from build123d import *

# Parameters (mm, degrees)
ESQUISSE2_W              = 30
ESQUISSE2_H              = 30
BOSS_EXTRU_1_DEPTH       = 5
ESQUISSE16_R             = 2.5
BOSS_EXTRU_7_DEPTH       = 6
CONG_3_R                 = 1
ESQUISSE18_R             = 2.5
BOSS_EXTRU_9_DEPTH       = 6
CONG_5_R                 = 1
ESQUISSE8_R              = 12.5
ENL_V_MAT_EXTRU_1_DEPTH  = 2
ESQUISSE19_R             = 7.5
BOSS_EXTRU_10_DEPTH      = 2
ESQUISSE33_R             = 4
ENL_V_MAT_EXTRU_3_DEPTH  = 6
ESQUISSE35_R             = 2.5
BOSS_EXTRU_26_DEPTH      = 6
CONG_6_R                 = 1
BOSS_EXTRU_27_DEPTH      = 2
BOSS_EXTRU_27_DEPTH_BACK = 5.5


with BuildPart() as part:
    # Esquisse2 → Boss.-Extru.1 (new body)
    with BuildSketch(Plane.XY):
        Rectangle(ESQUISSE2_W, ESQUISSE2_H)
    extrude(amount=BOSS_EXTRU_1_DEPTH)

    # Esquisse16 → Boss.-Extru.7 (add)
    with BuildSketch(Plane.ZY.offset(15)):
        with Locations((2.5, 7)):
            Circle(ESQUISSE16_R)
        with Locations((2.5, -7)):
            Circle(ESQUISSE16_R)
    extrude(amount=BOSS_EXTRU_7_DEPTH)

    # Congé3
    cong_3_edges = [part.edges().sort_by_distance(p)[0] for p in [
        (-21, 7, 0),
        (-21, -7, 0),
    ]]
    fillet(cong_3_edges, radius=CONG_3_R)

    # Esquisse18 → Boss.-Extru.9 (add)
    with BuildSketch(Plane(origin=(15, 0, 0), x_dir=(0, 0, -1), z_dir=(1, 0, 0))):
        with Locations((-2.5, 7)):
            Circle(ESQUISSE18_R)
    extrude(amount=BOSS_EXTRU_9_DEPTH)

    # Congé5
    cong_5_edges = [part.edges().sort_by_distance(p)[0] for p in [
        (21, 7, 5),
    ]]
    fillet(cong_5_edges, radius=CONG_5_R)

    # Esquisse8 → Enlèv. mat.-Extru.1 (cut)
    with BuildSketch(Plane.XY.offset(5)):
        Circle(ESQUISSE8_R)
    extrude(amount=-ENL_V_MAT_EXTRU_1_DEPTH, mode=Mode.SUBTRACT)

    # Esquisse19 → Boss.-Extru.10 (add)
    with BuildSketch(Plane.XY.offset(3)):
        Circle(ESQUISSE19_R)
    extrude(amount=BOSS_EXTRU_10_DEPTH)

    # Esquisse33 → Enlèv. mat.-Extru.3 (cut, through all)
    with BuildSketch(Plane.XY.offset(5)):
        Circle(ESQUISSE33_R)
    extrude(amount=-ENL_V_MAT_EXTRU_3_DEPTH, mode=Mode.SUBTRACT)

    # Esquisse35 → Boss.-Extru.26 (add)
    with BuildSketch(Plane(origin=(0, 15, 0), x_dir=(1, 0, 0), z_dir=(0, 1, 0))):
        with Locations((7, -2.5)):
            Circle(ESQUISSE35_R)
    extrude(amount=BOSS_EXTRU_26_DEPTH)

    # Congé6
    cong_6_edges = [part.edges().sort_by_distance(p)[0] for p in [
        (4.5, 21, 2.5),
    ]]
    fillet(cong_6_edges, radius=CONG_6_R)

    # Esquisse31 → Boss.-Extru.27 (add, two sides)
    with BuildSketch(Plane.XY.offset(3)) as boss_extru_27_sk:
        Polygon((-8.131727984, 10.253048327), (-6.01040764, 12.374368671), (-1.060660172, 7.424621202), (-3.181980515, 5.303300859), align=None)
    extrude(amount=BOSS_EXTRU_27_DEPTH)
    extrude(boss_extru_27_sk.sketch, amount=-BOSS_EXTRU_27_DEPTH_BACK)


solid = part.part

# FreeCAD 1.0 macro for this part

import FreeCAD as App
import Part
import Sketcher

V = App.Vector
Q = App.Units.Quantity


def edges_at(feature, points):
    """Names of the edges that pass closest to the given points."""
    edges = feature.Shape.Edges
    near = lambda p: min(range(len(edges)), key=lambda i: edges[i].distToShape(Part.Vertex(*p))[0])
    return sorted({f"Edge{near(p) + 1}" for p in points})

doc = App.newDocument("Part")
body = doc.addObject("PartDesign::Body", "Body")

sketch1 = body.newObject("Sketcher::SketchObject", "Sketch")
sketch1.AttachmentSupport = (doc.getObject("XY_Plane"), [""])
sketch1.MapMode = "FlatFace"
sketch1.addGeometry(Part.LineSegment(V(-15, 15, 0), V(-15, -15, 0)), False)
sketch1.addGeometry(Part.LineSegment(V(-15, -15, 0), V(15, -15, 0)), False)
sketch1.addGeometry(Part.LineSegment(V(15, -15, 0), V(15, 15, 0)), False)
sketch1.addGeometry(Part.LineSegment(V(15, 15, 0), V(-15, 15, 0)), False)
sketch1.addConstraint(Sketcher.Constraint("Coincident", 0, 2, 1, 1))
sketch1.addConstraint(Sketcher.Constraint("Coincident", 1, 2, 2, 1))
sketch1.addConstraint(Sketcher.Constraint("Coincident", 2, 2, 3, 1))
sketch1.addConstraint(Sketcher.Constraint("Coincident", 3, 2, 0, 1))
sketch1.addConstraint(Sketcher.Constraint("Vertical", 0))
sketch1.addConstraint(Sketcher.Constraint("Horizontal", 1))
sketch1.addConstraint(Sketcher.Constraint("Vertical", 2))
sketch1.addConstraint(Sketcher.Constraint("Horizontal", 3))
sketch1.addConstraint(Sketcher.Constraint("Symmetric", 0, 2, 2, 2, -1, 1))
sketch1.addConstraint(Sketcher.Constraint("Equal", 3, 0))
sketch1.addConstraint(Sketcher.Constraint("DistanceX", 1, 1, 1, 2, 30.0))
pad1 = body.newObject("PartDesign::Pad", "Pad")
pad1.Profile = sketch1
pad1.Length = 5

sketch2 = body.newObject("Sketcher::SketchObject", "Sketch001")
sketch2.AttachmentSupport = (doc.getObject("YZ_Plane"), [""])
sketch2.MapMode = "FlatFace"
sketch2.AttachmentOffset = App.Placement(V(0, 0, -15), App.Rotation())
sketch2.addGeometry(Part.Circle(V(7, 2.5, 0), V(0, 0, 1), 2.5), False)
sketch2.addGeometry(Part.Circle(V(-7, 2.5, 0), V(0, 0, 1), 2.5), False)
sketch2.addConstraint(Sketcher.Constraint("Equal", 0, 1))
sketch2.addConstraint(Sketcher.Constraint("Symmetric", 0, 3, 1, 3, -2))
sketch2.addConstraint(Sketcher.Constraint("Diameter", 0, 5.0))
sketch2.addConstraint(Sketcher.Constraint("DistanceX", -1, 1, 0, 3, 7.0))
sketch2.addConstraint(Sketcher.Constraint("DistanceY", -1, 1, 0, 3, 2.5))
pad2 = body.newObject("PartDesign::Pad", "Pad001")
pad2.Profile = sketch2
pad2.Length = 6
pad2.Reversed = True
doc.recompute()

fillet = body.newObject("PartDesign::Fillet", "Fillet")
fillet.Base = (pad2, edges_at(pad2, [(-21, 7, 0), (-21, -7, 0)]))
fillet.Radius = 1

sketch3 = body.newObject("Sketcher::SketchObject", "Sketch002")
sketch3.AttachmentSupport = (doc.getObject("YZ_Plane"), [""])
sketch3.MapMode = "FlatFace"
sketch3.AttachmentOffset = App.Placement(V(0, 0, 15), App.Rotation())
sketch3.addGeometry(Part.Circle(V(7, 2.5, 0), V(0, 0, 1), 2.5), False)
sketch3.addConstraint(Sketcher.Constraint("Diameter", 0, 5.0))
sketch3.addConstraint(Sketcher.Constraint("DistanceX", -1, 1, 0, 3, 7.0))
sketch3.addConstraint(Sketcher.Constraint("DistanceY", -1, 1, 0, 3, 2.5))
pad3 = body.newObject("PartDesign::Pad", "Pad002")
pad3.Profile = sketch3
pad3.Length = 6
doc.recompute()

fillet2 = body.newObject("PartDesign::Fillet", "Fillet001")
fillet2.Base = (pad3, edges_at(pad3, [(21, 7, 5)]))
fillet2.Radius = 1

sketch4 = body.newObject("Sketcher::SketchObject", "Sketch003")
sketch4.AttachmentSupport = (doc.getObject("XY_Plane"), [""])
sketch4.MapMode = "FlatFace"
sketch4.AttachmentOffset = App.Placement(V(0, 0, 5), App.Rotation())
sketch4.addGeometry(Part.Circle(V(0, 0, 0), V(0, 0, 1), 12), False)
sketch4.addConstraint(Sketcher.Constraint("Coincident", 0, 3, -1, 1))
sketch4.addConstraint(Sketcher.Constraint("Diameter", 0, 25.0))
pocket1 = body.newObject("PartDesign::Pocket", "Pocket")
pocket1.Profile = sketch4
pocket1.Length = 2

sketch5 = body.newObject("Sketcher::SketchObject", "Sketch004")
sketch5.AttachmentSupport = (doc.getObject("XY_Plane"), [""])
sketch5.MapMode = "FlatFace"
sketch5.AttachmentOffset = App.Placement(V(0, 0, 3), App.Rotation())
sketch5.addGeometry(Part.Circle(V(0, 0, 0), V(0, 0, 1), 8), False)
sketch5.addConstraint(Sketcher.Constraint("Coincident", 0, 3, -1, 1))
sketch5.addConstraint(Sketcher.Constraint("Diameter", 0, 15.0))
pad4 = body.newObject("PartDesign::Pad", "Pad003")
pad4.Profile = sketch5
pad4.Length = 2

sketch6 = body.newObject("Sketcher::SketchObject", "Sketch005")
sketch6.AttachmentSupport = (doc.getObject("XY_Plane"), [""])
sketch6.MapMode = "FlatFace"
sketch6.AttachmentOffset = App.Placement(V(0, 0, 5), App.Rotation())
sketch6.addGeometry(Part.Circle(V(0, 0, 0), V(0, 0, 1), 4), False)
sketch6.addConstraint(Sketcher.Constraint("Coincident", 0, 3, -1, 1))
sketch6.addConstraint(Sketcher.Constraint("Diameter", 0, 8.0))
pocket2 = body.newObject("PartDesign::Pocket", "Pocket001")
pocket2.Profile = sketch6
pocket2.Type = "ThroughAll"

sketch7 = body.newObject("Sketcher::SketchObject", "Sketch006")
sketch7.AttachmentSupport = (doc.getObject("XZ_Plane"), [""])
sketch7.MapMode = "FlatFace"
sketch7.AttachmentOffset = App.Placement(V(0, 0, -15), App.Rotation())
sketch7.addGeometry(Part.Circle(V(7, 2.5, 0), V(0, 0, 1), 2.5), False)
sketch7.addConstraint(Sketcher.Constraint("Diameter", 0, 5.0))
sketch7.addConstraint(Sketcher.Constraint("DistanceX", -1, 1, 0, 3, 7.0))
sketch7.addConstraint(Sketcher.Constraint("DistanceY", -1, 1, 0, 3, 2.5))
pad5 = body.newObject("PartDesign::Pad", "Pad004")
pad5.Profile = sketch7
pad5.Length = 6
pad5.Reversed = True
doc.recompute()

fillet3 = body.newObject("PartDesign::Fillet", "Fillet002")
fillet3.Base = (pad5, edges_at(pad5, [(4.5, 21, 2.5)]))
fillet3.Radius = 1

sketch8 = body.newObject("Sketcher::SketchObject", "Sketch007")
sketch8.AttachmentSupport = (doc.getObject("XY_Plane"), [""])
sketch8.MapMode = "FlatFace"
sketch8.AttachmentOffset = App.Placement(V(0, 0, 3), App.Rotation())
sketch8.addGeometry(Part.LineSegment(V(-6, 12.4, 0), V(-8.1, 10.3, 0)), False)
sketch8.addGeometry(Part.LineSegment(V(-8.1, 10.3, 0), V(-3.2, 5.3, 0)), False)
sketch8.addGeometry(Part.LineSegment(V(-3.2, 5.3, 0), V(-1.1, 7.4, 0)), False)
sketch8.addGeometry(Part.LineSegment(V(-1.1, 7.4, 0), V(-6, 12.4, 0)), False)
sketch8.addConstraint(Sketcher.Constraint("Coincident", 0, 2, 1, 1))
sketch8.addConstraint(Sketcher.Constraint("Coincident", 1, 2, 2, 1))
sketch8.addConstraint(Sketcher.Constraint("Coincident", 2, 2, 3, 1))
sketch8.addConstraint(Sketcher.Constraint("Coincident", 3, 2, 0, 1))
sketch8.addConstraint(Sketcher.Constraint("Perpendicular", 0, 1))
sketch8.addConstraint(Sketcher.Constraint("Perpendicular", 1, 2))
sketch8.addConstraint(Sketcher.Constraint("Perpendicular", 2, 3))
sketch8.addConstraint(Sketcher.Constraint("Angle", 0, Q("-135 deg")))
sketch8.addConstraint(Sketcher.Constraint("Distance", 0, 3.0))
sketch8.addConstraint(Sketcher.Constraint("Distance", 1, 7.0))
sketch8.addConstraint(Sketcher.Constraint("DistanceY", -1, 1, 1, 2, 5.303301))
sketch8.addConstraint(Sketcher.Constraint("DistanceX", 1, 2, -1, 1, 3.181981))
pad6 = body.newObject("PartDesign::Pad", "Pad005")
pad6.Profile = sketch8
pad6.Type = "TwoLengths"
pad6.Length = 2
pad6.Length2 = 5.5

doc.recompute()
